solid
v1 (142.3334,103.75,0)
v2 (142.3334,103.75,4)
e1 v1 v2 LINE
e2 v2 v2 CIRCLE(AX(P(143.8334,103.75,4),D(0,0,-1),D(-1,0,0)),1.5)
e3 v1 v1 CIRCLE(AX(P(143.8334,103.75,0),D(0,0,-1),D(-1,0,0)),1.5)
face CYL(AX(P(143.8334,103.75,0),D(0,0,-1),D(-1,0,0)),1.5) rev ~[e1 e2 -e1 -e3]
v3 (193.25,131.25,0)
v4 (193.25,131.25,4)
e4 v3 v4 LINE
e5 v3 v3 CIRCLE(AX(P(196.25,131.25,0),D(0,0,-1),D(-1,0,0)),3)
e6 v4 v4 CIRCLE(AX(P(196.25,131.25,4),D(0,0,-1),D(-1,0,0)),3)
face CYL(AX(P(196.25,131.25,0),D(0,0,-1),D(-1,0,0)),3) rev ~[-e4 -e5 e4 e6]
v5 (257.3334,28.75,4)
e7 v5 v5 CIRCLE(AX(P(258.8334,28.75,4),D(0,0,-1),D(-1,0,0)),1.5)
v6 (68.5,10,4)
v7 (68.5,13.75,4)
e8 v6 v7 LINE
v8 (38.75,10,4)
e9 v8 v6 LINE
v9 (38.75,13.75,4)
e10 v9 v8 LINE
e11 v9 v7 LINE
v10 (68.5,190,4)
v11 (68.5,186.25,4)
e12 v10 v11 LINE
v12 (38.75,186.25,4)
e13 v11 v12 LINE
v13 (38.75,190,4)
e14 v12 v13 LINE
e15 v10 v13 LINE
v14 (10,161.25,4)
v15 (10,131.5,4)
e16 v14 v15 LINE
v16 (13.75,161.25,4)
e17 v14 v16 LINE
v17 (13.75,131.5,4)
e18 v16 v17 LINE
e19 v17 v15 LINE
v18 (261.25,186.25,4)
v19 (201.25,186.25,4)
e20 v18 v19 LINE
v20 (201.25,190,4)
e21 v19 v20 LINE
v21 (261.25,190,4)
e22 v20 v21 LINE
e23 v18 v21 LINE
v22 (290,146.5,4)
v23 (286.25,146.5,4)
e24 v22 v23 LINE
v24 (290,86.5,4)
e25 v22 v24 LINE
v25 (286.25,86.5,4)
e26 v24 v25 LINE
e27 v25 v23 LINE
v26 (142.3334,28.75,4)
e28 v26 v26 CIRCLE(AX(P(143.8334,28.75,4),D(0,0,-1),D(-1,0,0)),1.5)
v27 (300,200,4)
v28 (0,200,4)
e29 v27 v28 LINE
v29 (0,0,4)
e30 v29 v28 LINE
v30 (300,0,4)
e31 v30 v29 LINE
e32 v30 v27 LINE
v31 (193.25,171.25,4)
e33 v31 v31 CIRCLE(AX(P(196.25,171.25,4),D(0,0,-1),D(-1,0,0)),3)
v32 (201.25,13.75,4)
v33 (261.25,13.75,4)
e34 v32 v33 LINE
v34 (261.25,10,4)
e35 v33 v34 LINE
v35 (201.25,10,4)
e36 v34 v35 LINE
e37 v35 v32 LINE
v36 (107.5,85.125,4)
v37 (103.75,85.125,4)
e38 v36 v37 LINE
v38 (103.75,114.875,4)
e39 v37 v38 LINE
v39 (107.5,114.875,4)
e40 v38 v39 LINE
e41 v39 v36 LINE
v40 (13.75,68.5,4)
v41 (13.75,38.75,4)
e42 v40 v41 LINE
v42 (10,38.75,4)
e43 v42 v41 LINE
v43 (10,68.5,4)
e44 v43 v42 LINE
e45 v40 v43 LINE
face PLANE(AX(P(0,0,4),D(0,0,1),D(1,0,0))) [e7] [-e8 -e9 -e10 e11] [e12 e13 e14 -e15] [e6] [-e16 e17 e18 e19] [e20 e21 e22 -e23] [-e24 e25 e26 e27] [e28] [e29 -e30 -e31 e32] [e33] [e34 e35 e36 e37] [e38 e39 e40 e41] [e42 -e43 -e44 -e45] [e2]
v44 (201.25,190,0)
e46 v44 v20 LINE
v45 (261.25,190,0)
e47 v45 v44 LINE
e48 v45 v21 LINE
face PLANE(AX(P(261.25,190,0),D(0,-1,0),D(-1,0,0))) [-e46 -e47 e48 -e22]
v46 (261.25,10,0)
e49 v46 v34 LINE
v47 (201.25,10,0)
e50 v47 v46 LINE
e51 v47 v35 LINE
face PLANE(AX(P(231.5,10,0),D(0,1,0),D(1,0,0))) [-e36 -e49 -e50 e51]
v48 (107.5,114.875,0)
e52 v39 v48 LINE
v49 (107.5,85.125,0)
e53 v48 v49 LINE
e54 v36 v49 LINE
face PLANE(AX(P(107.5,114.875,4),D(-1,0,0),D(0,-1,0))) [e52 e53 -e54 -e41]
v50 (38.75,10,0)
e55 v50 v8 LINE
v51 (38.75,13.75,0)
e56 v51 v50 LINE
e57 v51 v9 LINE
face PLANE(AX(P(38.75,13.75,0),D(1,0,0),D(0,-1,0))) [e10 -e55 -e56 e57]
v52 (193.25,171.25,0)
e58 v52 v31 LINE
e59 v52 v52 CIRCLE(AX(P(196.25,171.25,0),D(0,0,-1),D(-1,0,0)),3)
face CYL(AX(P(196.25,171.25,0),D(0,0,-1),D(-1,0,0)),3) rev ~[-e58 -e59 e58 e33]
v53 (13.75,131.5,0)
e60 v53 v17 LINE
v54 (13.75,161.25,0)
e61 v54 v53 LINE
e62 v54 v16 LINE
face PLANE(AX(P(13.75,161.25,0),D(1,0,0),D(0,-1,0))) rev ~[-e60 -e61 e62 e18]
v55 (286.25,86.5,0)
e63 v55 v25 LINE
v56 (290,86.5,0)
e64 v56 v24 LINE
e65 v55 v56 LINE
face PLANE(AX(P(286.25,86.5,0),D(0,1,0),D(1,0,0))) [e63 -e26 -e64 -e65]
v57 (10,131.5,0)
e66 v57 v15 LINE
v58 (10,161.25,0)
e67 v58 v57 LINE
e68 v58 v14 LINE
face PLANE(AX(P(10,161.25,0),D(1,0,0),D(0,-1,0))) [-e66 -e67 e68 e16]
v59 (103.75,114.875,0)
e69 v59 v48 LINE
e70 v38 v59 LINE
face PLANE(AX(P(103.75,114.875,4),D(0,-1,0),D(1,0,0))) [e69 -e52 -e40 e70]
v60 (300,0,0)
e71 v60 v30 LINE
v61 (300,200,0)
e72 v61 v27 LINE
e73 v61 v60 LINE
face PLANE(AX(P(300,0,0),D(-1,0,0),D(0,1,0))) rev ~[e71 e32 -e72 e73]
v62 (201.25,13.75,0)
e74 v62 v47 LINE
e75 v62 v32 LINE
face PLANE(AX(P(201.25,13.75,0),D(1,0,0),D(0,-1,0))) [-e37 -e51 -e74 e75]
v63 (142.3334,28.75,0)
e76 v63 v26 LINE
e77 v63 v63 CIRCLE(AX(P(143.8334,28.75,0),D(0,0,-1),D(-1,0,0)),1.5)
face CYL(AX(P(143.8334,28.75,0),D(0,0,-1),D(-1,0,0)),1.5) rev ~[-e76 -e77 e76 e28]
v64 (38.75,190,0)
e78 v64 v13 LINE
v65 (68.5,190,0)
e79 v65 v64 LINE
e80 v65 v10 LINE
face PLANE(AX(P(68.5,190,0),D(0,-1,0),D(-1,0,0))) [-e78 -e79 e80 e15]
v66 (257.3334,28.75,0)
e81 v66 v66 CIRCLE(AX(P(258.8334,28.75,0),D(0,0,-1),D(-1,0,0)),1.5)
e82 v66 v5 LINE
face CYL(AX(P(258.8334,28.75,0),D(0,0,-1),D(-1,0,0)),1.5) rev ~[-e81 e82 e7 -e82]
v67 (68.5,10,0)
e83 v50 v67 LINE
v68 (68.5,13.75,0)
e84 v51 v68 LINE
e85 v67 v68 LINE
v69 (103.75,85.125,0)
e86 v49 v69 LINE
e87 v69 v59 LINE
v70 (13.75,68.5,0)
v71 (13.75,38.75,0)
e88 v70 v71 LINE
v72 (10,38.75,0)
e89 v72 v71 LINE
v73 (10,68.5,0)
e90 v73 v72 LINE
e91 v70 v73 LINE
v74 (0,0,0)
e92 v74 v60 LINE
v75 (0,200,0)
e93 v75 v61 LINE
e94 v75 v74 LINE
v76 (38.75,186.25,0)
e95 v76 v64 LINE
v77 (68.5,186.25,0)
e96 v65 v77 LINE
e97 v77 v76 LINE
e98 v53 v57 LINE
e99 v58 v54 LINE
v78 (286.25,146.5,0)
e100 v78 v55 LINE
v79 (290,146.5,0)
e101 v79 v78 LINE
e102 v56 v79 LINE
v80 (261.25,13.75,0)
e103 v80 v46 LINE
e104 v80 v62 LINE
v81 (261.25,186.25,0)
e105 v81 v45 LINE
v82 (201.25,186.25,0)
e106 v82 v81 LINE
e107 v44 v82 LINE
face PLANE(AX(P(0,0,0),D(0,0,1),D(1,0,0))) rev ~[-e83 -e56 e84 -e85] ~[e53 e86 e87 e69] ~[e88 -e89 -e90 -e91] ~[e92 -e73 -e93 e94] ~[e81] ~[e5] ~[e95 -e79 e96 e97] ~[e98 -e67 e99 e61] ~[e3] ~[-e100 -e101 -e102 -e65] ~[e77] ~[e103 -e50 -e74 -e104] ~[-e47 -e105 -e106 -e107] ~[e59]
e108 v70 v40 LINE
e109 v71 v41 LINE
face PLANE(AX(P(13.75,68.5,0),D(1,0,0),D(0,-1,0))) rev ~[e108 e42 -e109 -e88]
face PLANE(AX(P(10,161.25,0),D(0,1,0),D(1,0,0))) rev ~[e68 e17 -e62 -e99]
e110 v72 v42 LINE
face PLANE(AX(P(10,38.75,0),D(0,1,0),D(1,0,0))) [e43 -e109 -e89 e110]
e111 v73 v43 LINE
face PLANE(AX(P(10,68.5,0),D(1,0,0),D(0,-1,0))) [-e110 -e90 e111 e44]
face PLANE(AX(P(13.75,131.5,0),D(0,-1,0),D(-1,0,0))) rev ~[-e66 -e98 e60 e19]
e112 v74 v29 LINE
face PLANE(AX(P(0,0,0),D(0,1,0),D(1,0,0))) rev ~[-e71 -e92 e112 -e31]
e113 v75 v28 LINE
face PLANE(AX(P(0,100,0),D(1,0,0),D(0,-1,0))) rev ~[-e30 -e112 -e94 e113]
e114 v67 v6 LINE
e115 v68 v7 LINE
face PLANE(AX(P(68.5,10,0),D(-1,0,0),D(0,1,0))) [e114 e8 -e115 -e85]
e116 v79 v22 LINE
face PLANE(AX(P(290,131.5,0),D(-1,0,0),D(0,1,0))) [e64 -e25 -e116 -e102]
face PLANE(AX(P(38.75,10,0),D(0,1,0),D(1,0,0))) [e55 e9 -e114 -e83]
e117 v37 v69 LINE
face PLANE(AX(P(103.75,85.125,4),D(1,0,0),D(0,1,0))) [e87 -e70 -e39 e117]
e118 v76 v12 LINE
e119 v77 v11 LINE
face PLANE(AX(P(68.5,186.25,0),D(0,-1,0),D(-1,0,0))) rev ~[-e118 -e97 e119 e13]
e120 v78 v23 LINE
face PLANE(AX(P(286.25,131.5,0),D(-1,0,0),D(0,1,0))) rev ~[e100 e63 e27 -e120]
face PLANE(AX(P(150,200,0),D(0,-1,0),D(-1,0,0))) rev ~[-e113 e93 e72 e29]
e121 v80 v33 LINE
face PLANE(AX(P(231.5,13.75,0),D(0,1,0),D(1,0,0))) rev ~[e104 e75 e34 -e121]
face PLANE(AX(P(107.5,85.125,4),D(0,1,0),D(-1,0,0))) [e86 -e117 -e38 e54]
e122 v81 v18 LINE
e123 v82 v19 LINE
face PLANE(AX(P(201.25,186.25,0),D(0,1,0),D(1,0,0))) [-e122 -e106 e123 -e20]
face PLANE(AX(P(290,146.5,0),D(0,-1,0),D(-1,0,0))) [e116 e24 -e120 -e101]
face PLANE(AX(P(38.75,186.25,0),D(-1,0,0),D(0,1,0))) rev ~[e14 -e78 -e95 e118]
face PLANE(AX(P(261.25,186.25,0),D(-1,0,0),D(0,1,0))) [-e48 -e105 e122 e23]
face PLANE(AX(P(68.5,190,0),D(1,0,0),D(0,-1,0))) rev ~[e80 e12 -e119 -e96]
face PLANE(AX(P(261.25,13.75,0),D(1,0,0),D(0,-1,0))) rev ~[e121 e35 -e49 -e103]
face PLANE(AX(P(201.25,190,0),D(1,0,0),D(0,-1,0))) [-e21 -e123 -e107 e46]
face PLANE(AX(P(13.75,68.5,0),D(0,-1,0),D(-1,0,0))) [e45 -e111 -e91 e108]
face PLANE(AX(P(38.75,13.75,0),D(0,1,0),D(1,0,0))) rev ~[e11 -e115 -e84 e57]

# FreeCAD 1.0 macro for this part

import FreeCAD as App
import Part
import Sketcher

V = App.Vector


def add_polygon(sketch, points):
    """Adds a closed chain of lines whose ends are joined by coincident constraints."""
    first, n = sketch.GeometryCount, len(points)
    for a, b in zip(points, points[1:] + points[:1]):
        sketch.addGeometry(Part.LineSegment(App.Vector(*a, 0), App.Vector(*b, 0)), False)
    for i in range(n):
        sketch.addConstraint(Sketcher.Constraint("Coincident", first + i, 2, first + (i + 1) % n, 1))

doc = App.newDocument("Part")
params = doc.addObject("Spreadsheet::Sheet", "Params")
for row, (alias, value) in enumerate([
    ("sketch1_width", "300 mm"),
    ("sketch1_height", "200 mm"),
    ("sketch1_width2", "3.75 mm"),
    ("sketch1_width3", "29.75 mm"),
    ("pad1_length", "4 mm"),
    ("sketch2_width", "3.75 mm"),
    ("sketch2_height", "29.75 mm"),
    ("sketch3_diameter", "3 mm"),
    ("sketch3_diameter2", "6 mm"),
    ("sketch4_width", "3.75 mm"),
    ("sketch4_height", "14.75 mm"),
    ("sketch4_height2", "29.75 mm"),
    ("pad2_length", "4 mm"),
    ("sketch5_height", "60 mm"),
    ("sketch5_width", "3.75 mm"),
    ("sketch6_width", "60 mm"),
    ("sketch6_height", "3.75 mm"),
], start=1):
    params.set(f"A{row}", alias)
    params.set(f"B{row}", "=" + value)
    params.setAlias(f"B{row}", alias)

body = doc.addObject("PartDesign::Body", "Body")

sketch1 = body.newObject("Sketcher::SketchObject", "Sketch")
sketch1.AttachmentSupport = (doc.getObject("XY_Plane"), [""])
sketch1.MapMode = "FlatFace"
add_polygon(sketch1, [(0, 0), (300, 0), (300, 200), (0, 200)])
add_polygon(sketch1, [(10, 38.8), (10, 68.5), (13.8, 68.5), (13.8, 38.8)])
add_polygon(sketch1, [(68.5, 10), (38.8, 10), (38.8, 13.8), (68.5, 13.8)])
add_polygon(sketch1, [(38.8, 190), (68.5, 190), (68.5, 186.2), (38.8, 186.2)])
add_polygon(sketch1, [(10, 131.5), (10, 161.2), (13.8, 161.2), (13.8, 131.5)])
add_polygon(sketch1, [(261.2, 10), (231.5, 10), (231.5, 13.8), (261.2, 13.8)])
add_polygon(sketch1, [(290, 68.5), (290, 38.8), (286.2, 38.8), (286.2, 68.5)])
add_polygon(sketch1, [(290, 161.2), (290, 131.5), (286.2, 131.5), (286.2, 161.2)])
add_polygon(sketch1, [(231.5, 190), (261.2, 190), (261.2, 186.2), (231.5, 186.2)])
sketch1.addConstraint(Sketcher.Constraint("Horizontal", 0))
sketch1.addConstraint(Sketcher.Constraint("Vertical", 1))
sketch1.addConstraint(Sketcher.Constraint("Horizontal", 2))
sketch1.addConstraint(Sketcher.Constraint("Vertical", 3))
sketch1.addConstraint(Sketcher.Constraint("Vertical", 4))
sketch1.addConstraint(Sketcher.Constraint("Horizontal", 5))
sketch1.addConstraint(Sketcher.Constraint("Vertical", 6))
sketch1.addConstraint(Sketcher.Constraint("Horizontal", 7))
sketch1.addConstraint(Sketcher.Constraint("Horizontal", 8))
sketch1.addConstraint(Sketcher.Constraint("Vertical", 9))
sketch1.addConstraint(Sketcher.Constraint("Horizontal", 10))
sketch1.addConstraint(Sketcher.Constraint("Vertical", 11))
sketch1.addConstraint(Sketcher.Constraint("Horizontal", 12))
sketch1.addConstraint(Sketcher.Constraint("Vertical", 13))
sketch1.addConstraint(Sketcher.Constraint("Horizontal", 14))
sketch1.addConstraint(Sketcher.Constraint("Vertical", 15))
sketch1.addConstraint(Sketcher.Constraint("Vertical", 16))
sketch1.addConstraint(Sketcher.Constraint("Horizontal", 17))
sketch1.addConstraint(Sketcher.Constraint("Vertical", 18))
sketch1.addConstraint(Sketcher.Constraint("Horizontal", 19))
sketch1.addConstraint(Sketcher.Constraint("Horizontal", 20))
sketch1.addConstraint(Sketcher.Constraint("Vertical", 21))
sketch1.addConstraint(Sketcher.Constraint("Horizontal", 22))
sketch1.addConstraint(Sketcher.Constraint("Vertical", 23))
sketch1.addConstraint(Sketcher.Constraint("Vertical", 24))
sketch1.addConstraint(Sketcher.Constraint("Horizontal", 25))
sketch1.addConstraint(Sketcher.Constraint("Vertical", 26))
sketch1.addConstraint(Sketcher.Constraint("Horizontal", 27))
sketch1.addConstraint(Sketcher.Constraint("Vertical", 28))
sketch1.addConstraint(Sketcher.Constraint("Horizontal", 29))
sketch1.addConstraint(Sketcher.Constraint("Vertical", 30))
sketch1.addConstraint(Sketcher.Constraint("Horizontal", 31))
sketch1.addConstraint(Sketcher.Constraint("Horizontal", 32))
sketch1.addConstraint(Sketcher.Constraint("Vertical", 33))
sketch1.addConstraint(Sketcher.Constraint("Horizontal", 34))
sketch1.addConstraint(Sketcher.Constraint("Vertical", 35))
sketch1.addConstraint(Sketcher.Constraint("Coincident", 3, 2, -1, 1))
sketch1.addConstraint(Sketcher.Constraint("Horizontal", 11, 2, 20, 2))
sketch1.addConstraint(Sketcher.Constraint("Horizontal", 10, 2, 21, 2))
sketch1.addConstraint(Sketcher.Constraint("Horizontal", 7, 2, 24, 2))
sketch1.addConstraint(Sketcher.Constraint("Horizontal", 5, 2, 26, 2))
sketch1.addConstraint(Sketcher.Constraint("Horizontal", 19, 2, 28, 2))
sketch1.addConstraint(Sketcher.Constraint("Horizontal", 17, 2, 30, 2))
sketch1.addConstraint(Sketcher.Constraint("Horizontal", 15, 2, 32, 2))
sketch1.addConstraint(Sketcher.Constraint("Horizontal", 14, 2, 33, 2))
sketch1.addConstraint(Sketcher.Constraint("Vertical", 11, 2, 12, 2))
sketch1.addConstraint(Sketcher.Constraint("Vertical", 9, 2, 14, 2))
sketch1.addConstraint(Sketcher.Constraint("Vertical", 7, 2, 16, 2))
sketch1.addConstraint(Sketcher.Constraint("Vertical", 6, 2, 17, 2))
sketch1.addConstraint(Sketcher.Constraint("Vertical", 27, 2, 28, 2))
sketch1.addConstraint(Sketcher.Constraint("Vertical", 26, 2, 29, 2))
sketch1.addConstraint(Sketcher.Constraint("Vertical", 23, 2, 32, 2))
sketch1.addConstraint(Sketcher.Constraint("Vertical", 21, 2, 34, 2))
sketch1.addConstraint(Sketcher.Constraint("Equal", 14, 20))
sketch1.addConstraint(Sketcher.Constraint("Equal", 19, 25))
sketch1.addConstraint(Sketcher.Constraint("Equal", 34, 4))
sketch1.addConstraint(Sketcher.Constraint("Equal", 31, 9))
sketch1.addConstraint(Sketcher.Constraint("Equal", 11, 13))
sketch1.addConstraint(Sketcher.Constraint("Equal", 6, 16))
sketch1.addConstraint(Sketcher.Constraint("DistanceX", 0, 1, 0, 2, 300.0))
sketch1.addConstraint(Sketcher.Constraint("DistanceY", 1, 1, 1, 2, 200.0))
sketch1.addConstraint(Sketcher.Constraint("DistanceX", -1, 1, 4, 2, 10.0))
sketch1.addConstraint(Sketcher.Constraint("DistanceY", -1, 1, 8, 2, 10.0))
sketch1.addConstraint(Sketcher.Constraint("DistanceX", 6, 2, 8, 2, 25.0))
sketch1.addConstraint(Sketcher.Constraint("DistanceY", 9, 2, 6, 2, 25.0))
sketch1.addConstraint(Sketcher.Constraint("DistanceY", 12, 2, 2, 2, 10.0))
sketch1.addConstraint(Sketcher.Constraint("DistanceY", 16, 2, 14, 2, 25.0))
sketch1.addConstraint(Sketcher.Constraint("DistanceX", 24, 2, 0, 2, 10.0))
sketch1.addConstraint(Sketcher.Constraint("DistanceX", 22, 2, 25, 2, 25.0))
sketch1.addConstraint(Sketcher.Constraint("DistanceX", 5, 1, 5, 2, 3.75))
sketch1.addConstraint(Sketcher.Constraint("DistanceX", 8, 2, 8, 1, 29.75))
sketch1.setExpression("Constraints[95]", "Params.sketch1_width")
sketch1.setExpression("Constraints[96]", "Params.sketch1_height")
sketch1.setExpression("Constraints[105]", "Params.sketch1_width2")
sketch1.setExpression("Constraints[106]", "Params.sketch1_width3")
pad1 = body.newObject("PartDesign::Pad", "Pad")
pad1.Profile = sketch1
pad1.setExpression("Length", "Params.pad1_length")

sketch2 = body.newObject("Sketcher::SketchObject", "Sketch001")
sketch2.AttachmentSupport = (doc.getObject("XY_Plane"), [""])
sketch2.MapMode = "FlatFace"
sketch2.AttachmentOffset = App.Placement(V(0, 0, 4), App.Rotation())
add_polygon(sketch2, [(107.5, 114.9), (103.8, 114.9), (103.8, 85.1), (107.5, 85.1)])
sketch2.addConstraint(Sketcher.Constraint("Horizontal", 0))
sketch2.addConstraint(Sketcher.Constraint("Vertical", 1))
sketch2.addConstraint(Sketcher.Constraint("Horizontal", 2))
sketch2.addConstraint(Sketcher.Constraint("Vertical", 3))
sketch2.addConstraint(Sketcher.Constraint("DistanceX", 0, 2, 0, 1, 3.75))
sketch2.addConstraint(Sketcher.Constraint("DistanceY", 1, 2, 1, 1, 29.75))
sketch2.addConstraint(Sketcher.Constraint("DistanceX", -1, 1, 2, 2, 107.5))
sketch2.addConstraint(Sketcher.Constraint("DistanceY", -1, 1, 0, 2, 114.875))
sketch2.setExpression("Constraints[8]", "Params.sketch2_width")
sketch2.setExpression("Constraints[9]", "Params.sketch2_height")
pocket1 = body.newObject("PartDesign::Pocket", "Pocket")
pocket1.Profile = sketch2
pocket1.Type = "ThroughAll"

sketch3 = body.newObject("Sketcher::SketchObject", "Sketch002")
sketch3.AttachmentSupport = (doc.getObject("XY_Plane"), [""])
sketch3.MapMode = "FlatFace"
sketch3.addGeometry(Part.Circle(V(258.8, 28.8, 0), V(0, 0, 1), 1.5), False)
sketch3.addGeometry(Part.Circle(V(143.8, 28.8, 0), V(0, 0, 1), 1.5), False)
sketch3.addGeometry(Part.Circle(V(143.8, 103.8, 0), V(0, 0, 1), 1.5), False)
sketch3.addGeometry(Part.Circle(V(196.2, 171.2, 0), V(0, 0, 1), 3), False)
sketch3.addGeometry(Part.Circle(V(196.2, 131.2, 0), V(0, 0, 1), 3), False)
sketch3.addConstraint(Sketcher.Constraint("Equal", 0, 1))
sketch3.addConstraint(Sketcher.Constraint("Equal", 1, 2))
sketch3.addConstraint(Sketcher.Constraint("Equal", 3, 4))
sketch3.addConstraint(Sketcher.Constraint("Horizontal", 0, 3, 1, 3))
sketch3.addConstraint(Sketcher.Constraint("Vertical", 1, 3, 2, 3))
sketch3.addConstraint(Sketcher.Constraint("Vertical", 3, 3, 4, 3))
sketch3.addConstraint(Sketcher.Constraint("Diameter", 0, 3.0))
sketch3.addConstraint(Sketcher.Constraint("Diameter", 3, 6.0))
sketch3.addConstraint(Sketcher.Constraint("DistanceX", 1, 3, 0, 3, 115.0))
sketch3.addConstraint(Sketcher.Constraint("DistanceY", 1, 3, 2, 3, 75.0))
sketch3.addConstraint(Sketcher.Constraint("DistanceY", 4, 3, 3, 3, 40.0))
sketch3.addConstraint(Sketcher.Constraint("DistanceY", 2, 3, 3, 3, 67.5))
sketch3.addConstraint(Sketcher.Constraint("DistanceY", -1, 1, 0, 3, 28.75))
sketch3.addConstraint(Sketcher.Constraint("DistanceX", -1, 1, 3, 3, 196.25))
sketch3.addConstraint(Sketcher.Constraint("DistanceX", -1, 1, 0, 3, 258.8334))
sketch3.setExpression("Constraints[6]", "Params.sketch3_diameter")
sketch3.setExpression("Constraints[7]", "Params.sketch3_diameter2")
pocket2 = body.newObject("PartDesign::Pocket", "Pocket001")
pocket2.Profile = sketch3
pocket2.Type = "ThroughAll"
pocket2.Reversed = True

sketch4 = body.newObject("Sketcher::SketchObject", "Sketch003")
sketch4.AttachmentSupport = (doc.getObject("XY_Plane"), [""])
sketch4.MapMode = "FlatFace"
add_polygon(sketch4, [(290, 161.2), (290, 146.5), (286.2, 146.5), (286.2, 161.2)])
add_polygon(sketch4, [(286.2, 68.5), (290, 68.5), (290, 38.8), (286.2, 38.8)])
sketch4.addConstraint(Sketcher.Constraint("Vertical", 0))
sketch4.addConstraint(Sketcher.Constraint("Horizontal", 1))
sketch4.addConstraint(Sketcher.Constraint("Vertical", 2))
sketch4.addConstraint(Sketcher.Constraint("Horizontal", 3))
sketch4.addConstraint(Sketcher.Constraint("Horizontal", 4))
sketch4.addConstraint(Sketcher.Constraint("Vertical", 5))
sketch4.addConstraint(Sketcher.Constraint("Horizontal", 6))
sketch4.addConstraint(Sketcher.Constraint("Vertical", 7))
sketch4.addConstraint(Sketcher.Constraint("Vertical", 3, 2, 4, 2))
sketch4.addConstraint(Sketcher.Constraint("Vertical", 2, 2, 6, 2))
sketch4.addConstraint(Sketcher.Constraint("DistanceX", -1, 1, 0, 2, 290.0))
sketch4.addConstraint(Sketcher.Constraint("DistanceY", 4, 2, 0, 2, 78.0))
sketch4.addConstraint(Sketcher.Constraint("DistanceX", 1, 2, 1, 1, 3.75))
sketch4.addConstraint(Sketcher.Constraint("DistanceY", 0, 2, 0, 1, 14.75))
sketch4.addConstraint(Sketcher.Constraint("DistanceY", 5, 2, 5, 1, 29.75))
sketch4.addConstraint(Sketcher.Constraint("DistanceY", -1, 1, 0, 2, 146.5))
sketch4.setExpression("Constraints[20]", "Params.sketch4_width")
sketch4.setExpression("Constraints[21]", "Params.sketch4_height")
sketch4.setExpression("Constraints[22]", "Params.sketch4_height2")
pad2 = body.newObject("PartDesign::Pad", "Pad001")
pad2.Profile = sketch4
pad2.setExpression("Length", "Params.pad2_length")

sketch5 = body.newObject("Sketcher::SketchObject", "Sketch004")
sketch5.AttachmentSupport = (doc.getObject("XY_Plane"), [""])
sketch5.MapMode = "FlatFace"
add_polygon(sketch5, [(286.2, 146.5), (290, 146.5), (290, 86.5), (286.2, 86.5)])
sketch5.addConstraint(Sketcher.Constraint("Horizontal", 0))
sketch5.addConstraint(Sketcher.Constraint("Vertical", 1))
sketch5.addConstraint(Sketcher.Constraint("Horizontal", 2))
sketch5.addConstraint(Sketcher.Constraint("Vertical", 3))
sketch5.addConstraint(Sketcher.Constraint("DistanceY", 1, 2, 1, 1, 60.0))
sketch5.addConstraint(Sketcher.Constraint("DistanceX", -1, 1, 0, 2, 290.0))
sketch5.addConstraint(Sketcher.Constraint("DistanceX", 0, 1, 0, 2, 3.75))
sketch5.addConstraint(Sketcher.Constraint("DistanceY", -1, 1, 0, 2, 146.5))
sketch5.setExpression("Constraints[8]", "Params.sketch5_height")
sketch5.setExpression("Constraints[10]", "Params.sketch5_width")
pocket3 = body.newObject("PartDesign::Pocket", "Pocket002")
pocket3.Profile = sketch5
pocket3.Type = "ThroughAll"
pocket3.Reversed = True

sketch6 = body.newObject("Sketcher::SketchObject", "Sketch005")
sketch6.AttachmentSupport = (doc.getObject("XY_Plane"), [""])
sketch6.MapMode = "FlatFace"
add_polygon(sketch6, [(201.2, 190), (261.2, 190), (261.2, 186.2), (201.2, 186.2)])
add_polygon(sketch6, [(201.2, 13.8), (261.2, 13.8), (261.2, 10), (201.2, 10)])
sketch6.addConstraint(Sketcher.Constraint("Horizontal", 0))
sketch6.addConstraint(Sketcher.Constraint("Vertical", 1))
sketch6.addConstraint(Sketcher.Constraint("Horizontal", 2))
sketch6.addConstraint(Sketcher.Constraint("Vertical", 3))
sketch6.addConstraint(Sketcher.Constraint("Horizontal", 4))
sketch6.addConstraint(Sketcher.Constraint("Vertical", 5))
sketch6.addConstraint(Sketcher.Constraint("Horizontal", 6))
sketch6.addConstraint(Sketcher.Constraint("Vertical", 7))
sketch6.addConstraint(Sketcher.Constraint("Vertical", 1, 2, 4, 2))
sketch6.addConstraint(Sketcher.Constraint("Vertical", 3, 2, 6, 2))
sketch6.addConstraint(Sketcher.Constraint("Equal", 3, 5))
sketch6.addConstraint(Sketcher.Constraint("DistanceX", 0, 1, 0, 2, 60.0))
sketch6.addConstraint(Sketcher.Constraint("DistanceY", 1, 2, 1, 1, 3.75))
sketch6.addConstraint(Sketcher.Constraint("DistanceY", -1, 1, 0, 2, 190.0))
sketch6.addConstraint(Sketcher.Constraint("DistanceY", -1, 1, 5, 2, 10.0))
sketch6.addConstraint(Sketcher.Constraint("DistanceX", -1, 1, 0, 2, 261.25))
sketch6.setExpression("Constraints[19]", "Params.sketch6_width")
sketch6.setExpression("Constraints[20]", "Params.sketch6_height")
pocket4 = body.newObject("PartDesign::Pocket", "Pocket003")
pocket4.Profile = sketch6
pocket4.Type = "ThroughAll"
pocket4.Reversed = True

doc.recompute()
